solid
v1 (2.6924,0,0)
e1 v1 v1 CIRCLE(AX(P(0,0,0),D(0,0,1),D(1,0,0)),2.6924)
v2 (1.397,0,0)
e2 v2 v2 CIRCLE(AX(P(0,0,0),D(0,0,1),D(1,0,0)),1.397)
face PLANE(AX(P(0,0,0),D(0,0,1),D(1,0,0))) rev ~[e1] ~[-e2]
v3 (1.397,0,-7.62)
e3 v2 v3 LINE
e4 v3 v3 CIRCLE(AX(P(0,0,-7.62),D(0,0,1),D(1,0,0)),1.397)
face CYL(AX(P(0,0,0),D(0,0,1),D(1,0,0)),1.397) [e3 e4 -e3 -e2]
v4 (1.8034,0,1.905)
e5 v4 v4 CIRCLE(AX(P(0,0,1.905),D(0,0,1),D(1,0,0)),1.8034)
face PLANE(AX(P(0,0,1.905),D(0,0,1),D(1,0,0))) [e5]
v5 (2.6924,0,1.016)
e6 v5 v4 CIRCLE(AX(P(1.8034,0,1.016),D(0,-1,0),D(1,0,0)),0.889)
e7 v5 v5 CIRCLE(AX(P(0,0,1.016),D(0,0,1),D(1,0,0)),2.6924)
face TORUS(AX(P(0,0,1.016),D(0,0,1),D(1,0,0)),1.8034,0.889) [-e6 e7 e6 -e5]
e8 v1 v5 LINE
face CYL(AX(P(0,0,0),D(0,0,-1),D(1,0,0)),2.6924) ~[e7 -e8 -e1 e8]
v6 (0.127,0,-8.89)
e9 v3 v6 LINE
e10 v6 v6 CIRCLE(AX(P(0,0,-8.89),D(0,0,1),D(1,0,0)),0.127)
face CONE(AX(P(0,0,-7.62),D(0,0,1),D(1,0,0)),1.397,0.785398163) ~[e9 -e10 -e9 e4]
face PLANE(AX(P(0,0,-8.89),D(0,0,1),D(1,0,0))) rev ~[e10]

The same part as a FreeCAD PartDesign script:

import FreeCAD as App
import Part
import Sketcher
Q = App.Units.Quantity


def edges_at(feature, points):
    """Names of the edges that pass closest to the given points."""
    edges = feature.Shape.Edges
    near = lambda p: min(range(len(edges)), key=lambda i: edges[i].distToShape(Part.Vertex(*p))[0])
    return sorted({f"Edge{near(p) + 1}" for p in points})

doc = App.newDocument("Part")
body = doc.addObject("PartDesign::Body", "Body")

# Sketch on XY plane
sketch1 = doc.addObject("Sketcher::SketchObject", "Sketch")
body.addObject(sketch1)
sketch1.AttachmentSupport = (doc.XY_Plane, [""])
sketch1.MapMode = "FlatFace"
sketch1.addGeometry(Part.Circle(App.Vector(0, 0, 0), App.Vector(0, 0, 1), 2.7), False)
sketch1.addConstraint([
    Sketcher.Constraint("Coincident", 0, 3, -1, 1),
    Sketcher.Constraint("Diameter", 0, Q("0.212 in")),
])
pad1 = doc.addObject("PartDesign::Pad", "Pad")
body.addObject(pad1)
pad1.Profile = sketch1
pad1.Length = Q("0.075 in")
doc.recompute()

fillet = doc.addObject("PartDesign::Fillet", "Fillet")
body.addObject(fillet)
fillet.Base = (pad1, edges_at(pad1, [(-2.692, 0, 1.905)]))
fillet.Radius = Q("0.035 in")

# Sketch on XY plane
sketch2 = doc.addObject("Sketcher::SketchObject", "Sketch001")
body.addObject(sketch2)
sketch2.AttachmentSupport = (doc.XY_Plane, [""])
sketch2.MapMode = "FlatFace"
sketch2.addGeometry(Part.Circle(App.Vector(0, 0, 0), App.Vector(0, 0, 1), 1.4), False)
sketch2.addConstraint([
    Sketcher.Constraint("Coincident", 0, 3, -1, 1),
    Sketcher.Constraint("Diameter", 0, Q("0.11 in")),
])
pad2 = doc.addObject("PartDesign::Pad", "Pad001")
body.addObject(pad2)
pad2.Profile = sketch2
pad2.Length = Q("0.35 in")
pad2.Reversed = True
doc.recompute()

chamfer = doc.addObject("PartDesign::Chamfer", "Chamfer")
body.addObject(chamfer)
chamfer.Base = (pad2, edges_at(pad2, [(-1.397, 0, -8.89)]))
chamfer.Size = Q("0.05 in")

doc.recompute()
